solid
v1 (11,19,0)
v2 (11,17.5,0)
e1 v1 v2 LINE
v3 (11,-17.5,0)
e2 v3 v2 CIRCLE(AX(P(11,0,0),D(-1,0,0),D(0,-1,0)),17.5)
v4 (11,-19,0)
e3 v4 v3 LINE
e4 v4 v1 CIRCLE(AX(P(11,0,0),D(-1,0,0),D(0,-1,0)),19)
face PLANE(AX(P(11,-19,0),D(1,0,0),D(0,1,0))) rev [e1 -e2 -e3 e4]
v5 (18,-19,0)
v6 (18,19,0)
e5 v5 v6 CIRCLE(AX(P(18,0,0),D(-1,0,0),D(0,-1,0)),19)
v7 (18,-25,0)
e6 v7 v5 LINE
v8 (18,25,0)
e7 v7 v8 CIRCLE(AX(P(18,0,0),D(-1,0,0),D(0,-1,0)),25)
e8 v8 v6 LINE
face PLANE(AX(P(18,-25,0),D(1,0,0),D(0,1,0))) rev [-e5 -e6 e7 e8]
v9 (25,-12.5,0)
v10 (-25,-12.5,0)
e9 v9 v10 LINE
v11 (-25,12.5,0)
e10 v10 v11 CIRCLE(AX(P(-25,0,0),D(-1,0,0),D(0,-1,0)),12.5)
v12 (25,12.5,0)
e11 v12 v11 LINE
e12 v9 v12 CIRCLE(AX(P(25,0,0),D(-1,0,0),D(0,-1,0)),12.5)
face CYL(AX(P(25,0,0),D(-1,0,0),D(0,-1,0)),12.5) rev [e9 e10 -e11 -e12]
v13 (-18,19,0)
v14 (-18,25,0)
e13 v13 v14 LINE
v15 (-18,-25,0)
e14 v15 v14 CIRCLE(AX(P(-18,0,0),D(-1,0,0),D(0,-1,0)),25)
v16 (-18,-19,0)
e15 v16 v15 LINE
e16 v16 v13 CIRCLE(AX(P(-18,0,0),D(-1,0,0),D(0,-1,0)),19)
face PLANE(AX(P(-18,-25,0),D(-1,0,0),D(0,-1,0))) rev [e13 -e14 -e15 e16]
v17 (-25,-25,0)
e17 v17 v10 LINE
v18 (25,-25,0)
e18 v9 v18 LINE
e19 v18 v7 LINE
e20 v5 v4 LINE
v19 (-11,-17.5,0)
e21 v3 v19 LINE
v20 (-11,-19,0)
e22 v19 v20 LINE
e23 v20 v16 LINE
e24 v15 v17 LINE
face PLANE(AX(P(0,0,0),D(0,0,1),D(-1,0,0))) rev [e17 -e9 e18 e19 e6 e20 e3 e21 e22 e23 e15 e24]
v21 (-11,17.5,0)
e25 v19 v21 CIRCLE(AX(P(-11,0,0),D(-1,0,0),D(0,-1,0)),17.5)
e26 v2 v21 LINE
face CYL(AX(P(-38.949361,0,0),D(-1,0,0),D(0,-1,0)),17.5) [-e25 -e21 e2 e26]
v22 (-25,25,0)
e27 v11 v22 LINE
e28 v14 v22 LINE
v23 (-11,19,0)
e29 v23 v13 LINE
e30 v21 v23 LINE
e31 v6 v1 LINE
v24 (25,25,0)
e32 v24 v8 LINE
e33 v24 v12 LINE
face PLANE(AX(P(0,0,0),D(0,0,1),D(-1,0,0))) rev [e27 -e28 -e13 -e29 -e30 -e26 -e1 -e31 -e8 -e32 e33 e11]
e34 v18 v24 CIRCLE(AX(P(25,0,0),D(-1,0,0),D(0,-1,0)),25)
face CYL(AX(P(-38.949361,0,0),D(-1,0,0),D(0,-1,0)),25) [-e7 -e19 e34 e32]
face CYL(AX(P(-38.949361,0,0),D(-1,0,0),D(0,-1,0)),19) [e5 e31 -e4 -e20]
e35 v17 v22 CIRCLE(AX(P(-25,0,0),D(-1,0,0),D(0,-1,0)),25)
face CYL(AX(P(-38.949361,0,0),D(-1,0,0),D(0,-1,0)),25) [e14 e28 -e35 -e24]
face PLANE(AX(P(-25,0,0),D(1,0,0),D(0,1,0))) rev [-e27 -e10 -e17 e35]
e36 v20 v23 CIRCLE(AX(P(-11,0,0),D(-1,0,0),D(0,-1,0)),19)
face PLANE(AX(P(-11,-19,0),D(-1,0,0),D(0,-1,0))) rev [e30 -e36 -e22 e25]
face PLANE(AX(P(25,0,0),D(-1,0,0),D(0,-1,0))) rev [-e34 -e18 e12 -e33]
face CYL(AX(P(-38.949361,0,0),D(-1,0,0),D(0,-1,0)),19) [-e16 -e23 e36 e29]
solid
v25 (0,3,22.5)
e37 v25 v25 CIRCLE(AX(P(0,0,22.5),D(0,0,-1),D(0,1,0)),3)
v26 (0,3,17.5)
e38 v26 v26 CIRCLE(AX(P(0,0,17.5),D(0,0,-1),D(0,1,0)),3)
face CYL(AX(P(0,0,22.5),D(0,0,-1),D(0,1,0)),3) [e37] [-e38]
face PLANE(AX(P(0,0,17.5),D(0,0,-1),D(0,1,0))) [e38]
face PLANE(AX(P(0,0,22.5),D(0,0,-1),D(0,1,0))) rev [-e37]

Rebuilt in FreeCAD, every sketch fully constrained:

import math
import FreeCAD as App
import Part
import Sketcher

V = App.Vector

doc = App.newDocument("Part")
body = doc.addObject("PartDesign::Body", "Body")

# Sketch on XY plane
sketch1 = doc.addObject("Sketcher::SketchObject", "Sketch")
body.addObject(sketch1)
sketch1.AttachmentSupport = (doc.XY_Plane, [""])
sketch1.MapMode = "FlatFace"
sketch1.addGeometry([
    Part.LineSegment(V(-25, 0, 0), V(25, 0, 0)),  # 0
    Part.LineSegment(V(25, 0, 0), V(25, 25, 0)),  # 1
    Part.LineSegment(V(25, 25, 0), V(18, 25, 0)),  # 2
    Part.LineSegment(V(18, 25, 0), V(18, 19, 0)),  # 3
    Part.LineSegment(V(18, 19, 0), V(11, 19, 0)),  # 4
    Part.LineSegment(V(11, 19, 0), V(11, 17.5, 0)),  # 5
    Part.LineSegment(V(11, 17.5, 0), V(-11, 17.5, 0)),  # 6
    Part.LineSegment(V(-11, 17.5, 0), V(-11, 19, 0)),  # 7
    Part.LineSegment(V(-11, 19, 0), V(-18, 19, 0)),  # 8
    Part.LineSegment(V(-18, 19, 0), V(-18, 25, 0)),  # 9
    Part.LineSegment(V(-18, 25, 0), V(-25, 25, 0)),  # 10
    Part.LineSegment(V(-25, 25, 0), V(-25, 0, 0)),  # 11
], False)
sketch1.addConstraint([
    Sketcher.Constraint("Coincident", 0, 2, 1, 1),
    Sketcher.Constraint("Coincident", 1, 2, 2, 1),
    Sketcher.Constraint("Coincident", 2, 2, 3, 1),
    Sketcher.Constraint("Coincident", 3, 2, 4, 1),
    Sketcher.Constraint("Coincident", 4, 2, 5, 1),
    Sketcher.Constraint("Coincident", 5, 2, 6, 1),
    Sketcher.Constraint("Coincident", 6, 2, 7, 1),
    Sketcher.Constraint("Coincident", 7, 2, 8, 1),
    Sketcher.Constraint("Coincident", 8, 2, 9, 1),
    Sketcher.Constraint("Coincident", 9, 2, 10, 1),
    Sketcher.Constraint("Coincident", 10, 2, 11, 1),
    Sketcher.Constraint("Coincident", 11, 2, 0, 1),
    Sketcher.Constraint("Horizontal", 0),
    Sketcher.Constraint("Vertical", 1),
    Sketcher.Constraint("Horizontal", 2),
    Sketcher.Constraint("Vertical", 3),
    Sketcher.Constraint("Horizontal", 4),
    Sketcher.Constraint("Vertical", 5),
    Sketcher.Constraint("Horizontal", 6),
    Sketcher.Constraint("Vertical", 7),
    Sketcher.Constraint("Horizontal", 8),
    Sketcher.Constraint("Vertical", 9),
    Sketcher.Constraint("Horizontal", 10),
    Sketcher.Constraint("Vertical", 11),
    Sketcher.Constraint("Symmetric", 0, 2, 11, 2, -1, 1),
    Sketcher.Constraint("Symmetric", 4, 2, 7, 2, -2),
    Sketcher.Constraint("Symmetric", 2, 2, 9, 2, -2),
    Sketcher.Constraint("Equal", 2, 4),
    Sketcher.Constraint("DistanceX", 0, 1, 0, 2, 50.0),
    Sketcher.Constraint("DistanceX", 2, 2, 2, 1, 7.0),
    Sketcher.Constraint("DistanceY", 1, 1, 1, 2, 25.0),
    Sketcher.Constraint("DistanceY", 3, 2, 3, 1, 6.0),
    Sketcher.Constraint("DistanceY", 5, 2, 5, 1, 1.5),
])
revolution = doc.addObject("PartDesign::Revolution", "Revolution")
body.addObject(revolution)
revolution.Profile = sketch1
revolution.ReferenceAxis = (sketch1, ["H_Axis"])
revolution.Angle = 180

# Sketch on YZ plane
sketch2 = doc.addObject("Sketcher::SketchObject", "Sketch001")
body.addObject(sketch2)
sketch2.AttachmentSupport = (doc.YZ_Plane, [""])
sketch2.MapMode = "FlatFace"
sketch2.AttachmentOffset = App.Placement(V(0, 0, -25), App.Rotation())
sketch2.addGeometry([
    Part.LineSegment(V(12.5, 0, 0), V(-12.5, 0, 0)),
    Part.ArcOfCircle(Part.Circle(V(0, 0, 0), V(0, 0, 1), 12.5), math.radians(0), math.radians(180)),
], False)
sketch2.addConstraint([
    Sketcher.Constraint("Coincident", 0, 1, 1, 1),
    Sketcher.Constraint("Coincident", 1, 2, 0, 2),
    Sketcher.Constraint("Horizontal", 0),
    Sketcher.Constraint("Coincident", 1, 3, -1, 1),
    Sketcher.Constraint("PointOnObject", 0, 1, -1),
    Sketcher.Constraint("Radius", 1, 12.5),
])
pocket1 = doc.addObject("PartDesign::Pocket", "Pocket")
body.addObject(pocket1)
pocket1.Profile = sketch2
pocket1.Length = 50
pocket1.Reversed = True
body2 = doc.addObject("PartDesign::Body", "Body001")

# Sketch on XY plane
sketch3 = doc.addObject("Sketcher::SketchObject", "Sketch002")
body2.addObject(sketch3)
sketch3.AttachmentSupport = (doc.getObject("XY_Plane001"), [""])
sketch3.MapMode = "FlatFace"
sketch3.AttachmentOffset = App.Placement(V(0, 0, 17.5), App.Rotation())
sketch3.addGeometry(Part.Circle(V(0, 0, 0), V(0, 0, 1), 3), False)
sketch3.addConstraint([
    Sketcher.Constraint("Coincident", 0, 3, -1, 1),
    Sketcher.Constraint("Diameter", 0, 6.0),
])
pad1 = doc.addObject("PartDesign::Pad", "Pad")
body2.addObject(pad1)
pad1.Profile = sketch3
pad1.Length = 5

doc.recompute()
